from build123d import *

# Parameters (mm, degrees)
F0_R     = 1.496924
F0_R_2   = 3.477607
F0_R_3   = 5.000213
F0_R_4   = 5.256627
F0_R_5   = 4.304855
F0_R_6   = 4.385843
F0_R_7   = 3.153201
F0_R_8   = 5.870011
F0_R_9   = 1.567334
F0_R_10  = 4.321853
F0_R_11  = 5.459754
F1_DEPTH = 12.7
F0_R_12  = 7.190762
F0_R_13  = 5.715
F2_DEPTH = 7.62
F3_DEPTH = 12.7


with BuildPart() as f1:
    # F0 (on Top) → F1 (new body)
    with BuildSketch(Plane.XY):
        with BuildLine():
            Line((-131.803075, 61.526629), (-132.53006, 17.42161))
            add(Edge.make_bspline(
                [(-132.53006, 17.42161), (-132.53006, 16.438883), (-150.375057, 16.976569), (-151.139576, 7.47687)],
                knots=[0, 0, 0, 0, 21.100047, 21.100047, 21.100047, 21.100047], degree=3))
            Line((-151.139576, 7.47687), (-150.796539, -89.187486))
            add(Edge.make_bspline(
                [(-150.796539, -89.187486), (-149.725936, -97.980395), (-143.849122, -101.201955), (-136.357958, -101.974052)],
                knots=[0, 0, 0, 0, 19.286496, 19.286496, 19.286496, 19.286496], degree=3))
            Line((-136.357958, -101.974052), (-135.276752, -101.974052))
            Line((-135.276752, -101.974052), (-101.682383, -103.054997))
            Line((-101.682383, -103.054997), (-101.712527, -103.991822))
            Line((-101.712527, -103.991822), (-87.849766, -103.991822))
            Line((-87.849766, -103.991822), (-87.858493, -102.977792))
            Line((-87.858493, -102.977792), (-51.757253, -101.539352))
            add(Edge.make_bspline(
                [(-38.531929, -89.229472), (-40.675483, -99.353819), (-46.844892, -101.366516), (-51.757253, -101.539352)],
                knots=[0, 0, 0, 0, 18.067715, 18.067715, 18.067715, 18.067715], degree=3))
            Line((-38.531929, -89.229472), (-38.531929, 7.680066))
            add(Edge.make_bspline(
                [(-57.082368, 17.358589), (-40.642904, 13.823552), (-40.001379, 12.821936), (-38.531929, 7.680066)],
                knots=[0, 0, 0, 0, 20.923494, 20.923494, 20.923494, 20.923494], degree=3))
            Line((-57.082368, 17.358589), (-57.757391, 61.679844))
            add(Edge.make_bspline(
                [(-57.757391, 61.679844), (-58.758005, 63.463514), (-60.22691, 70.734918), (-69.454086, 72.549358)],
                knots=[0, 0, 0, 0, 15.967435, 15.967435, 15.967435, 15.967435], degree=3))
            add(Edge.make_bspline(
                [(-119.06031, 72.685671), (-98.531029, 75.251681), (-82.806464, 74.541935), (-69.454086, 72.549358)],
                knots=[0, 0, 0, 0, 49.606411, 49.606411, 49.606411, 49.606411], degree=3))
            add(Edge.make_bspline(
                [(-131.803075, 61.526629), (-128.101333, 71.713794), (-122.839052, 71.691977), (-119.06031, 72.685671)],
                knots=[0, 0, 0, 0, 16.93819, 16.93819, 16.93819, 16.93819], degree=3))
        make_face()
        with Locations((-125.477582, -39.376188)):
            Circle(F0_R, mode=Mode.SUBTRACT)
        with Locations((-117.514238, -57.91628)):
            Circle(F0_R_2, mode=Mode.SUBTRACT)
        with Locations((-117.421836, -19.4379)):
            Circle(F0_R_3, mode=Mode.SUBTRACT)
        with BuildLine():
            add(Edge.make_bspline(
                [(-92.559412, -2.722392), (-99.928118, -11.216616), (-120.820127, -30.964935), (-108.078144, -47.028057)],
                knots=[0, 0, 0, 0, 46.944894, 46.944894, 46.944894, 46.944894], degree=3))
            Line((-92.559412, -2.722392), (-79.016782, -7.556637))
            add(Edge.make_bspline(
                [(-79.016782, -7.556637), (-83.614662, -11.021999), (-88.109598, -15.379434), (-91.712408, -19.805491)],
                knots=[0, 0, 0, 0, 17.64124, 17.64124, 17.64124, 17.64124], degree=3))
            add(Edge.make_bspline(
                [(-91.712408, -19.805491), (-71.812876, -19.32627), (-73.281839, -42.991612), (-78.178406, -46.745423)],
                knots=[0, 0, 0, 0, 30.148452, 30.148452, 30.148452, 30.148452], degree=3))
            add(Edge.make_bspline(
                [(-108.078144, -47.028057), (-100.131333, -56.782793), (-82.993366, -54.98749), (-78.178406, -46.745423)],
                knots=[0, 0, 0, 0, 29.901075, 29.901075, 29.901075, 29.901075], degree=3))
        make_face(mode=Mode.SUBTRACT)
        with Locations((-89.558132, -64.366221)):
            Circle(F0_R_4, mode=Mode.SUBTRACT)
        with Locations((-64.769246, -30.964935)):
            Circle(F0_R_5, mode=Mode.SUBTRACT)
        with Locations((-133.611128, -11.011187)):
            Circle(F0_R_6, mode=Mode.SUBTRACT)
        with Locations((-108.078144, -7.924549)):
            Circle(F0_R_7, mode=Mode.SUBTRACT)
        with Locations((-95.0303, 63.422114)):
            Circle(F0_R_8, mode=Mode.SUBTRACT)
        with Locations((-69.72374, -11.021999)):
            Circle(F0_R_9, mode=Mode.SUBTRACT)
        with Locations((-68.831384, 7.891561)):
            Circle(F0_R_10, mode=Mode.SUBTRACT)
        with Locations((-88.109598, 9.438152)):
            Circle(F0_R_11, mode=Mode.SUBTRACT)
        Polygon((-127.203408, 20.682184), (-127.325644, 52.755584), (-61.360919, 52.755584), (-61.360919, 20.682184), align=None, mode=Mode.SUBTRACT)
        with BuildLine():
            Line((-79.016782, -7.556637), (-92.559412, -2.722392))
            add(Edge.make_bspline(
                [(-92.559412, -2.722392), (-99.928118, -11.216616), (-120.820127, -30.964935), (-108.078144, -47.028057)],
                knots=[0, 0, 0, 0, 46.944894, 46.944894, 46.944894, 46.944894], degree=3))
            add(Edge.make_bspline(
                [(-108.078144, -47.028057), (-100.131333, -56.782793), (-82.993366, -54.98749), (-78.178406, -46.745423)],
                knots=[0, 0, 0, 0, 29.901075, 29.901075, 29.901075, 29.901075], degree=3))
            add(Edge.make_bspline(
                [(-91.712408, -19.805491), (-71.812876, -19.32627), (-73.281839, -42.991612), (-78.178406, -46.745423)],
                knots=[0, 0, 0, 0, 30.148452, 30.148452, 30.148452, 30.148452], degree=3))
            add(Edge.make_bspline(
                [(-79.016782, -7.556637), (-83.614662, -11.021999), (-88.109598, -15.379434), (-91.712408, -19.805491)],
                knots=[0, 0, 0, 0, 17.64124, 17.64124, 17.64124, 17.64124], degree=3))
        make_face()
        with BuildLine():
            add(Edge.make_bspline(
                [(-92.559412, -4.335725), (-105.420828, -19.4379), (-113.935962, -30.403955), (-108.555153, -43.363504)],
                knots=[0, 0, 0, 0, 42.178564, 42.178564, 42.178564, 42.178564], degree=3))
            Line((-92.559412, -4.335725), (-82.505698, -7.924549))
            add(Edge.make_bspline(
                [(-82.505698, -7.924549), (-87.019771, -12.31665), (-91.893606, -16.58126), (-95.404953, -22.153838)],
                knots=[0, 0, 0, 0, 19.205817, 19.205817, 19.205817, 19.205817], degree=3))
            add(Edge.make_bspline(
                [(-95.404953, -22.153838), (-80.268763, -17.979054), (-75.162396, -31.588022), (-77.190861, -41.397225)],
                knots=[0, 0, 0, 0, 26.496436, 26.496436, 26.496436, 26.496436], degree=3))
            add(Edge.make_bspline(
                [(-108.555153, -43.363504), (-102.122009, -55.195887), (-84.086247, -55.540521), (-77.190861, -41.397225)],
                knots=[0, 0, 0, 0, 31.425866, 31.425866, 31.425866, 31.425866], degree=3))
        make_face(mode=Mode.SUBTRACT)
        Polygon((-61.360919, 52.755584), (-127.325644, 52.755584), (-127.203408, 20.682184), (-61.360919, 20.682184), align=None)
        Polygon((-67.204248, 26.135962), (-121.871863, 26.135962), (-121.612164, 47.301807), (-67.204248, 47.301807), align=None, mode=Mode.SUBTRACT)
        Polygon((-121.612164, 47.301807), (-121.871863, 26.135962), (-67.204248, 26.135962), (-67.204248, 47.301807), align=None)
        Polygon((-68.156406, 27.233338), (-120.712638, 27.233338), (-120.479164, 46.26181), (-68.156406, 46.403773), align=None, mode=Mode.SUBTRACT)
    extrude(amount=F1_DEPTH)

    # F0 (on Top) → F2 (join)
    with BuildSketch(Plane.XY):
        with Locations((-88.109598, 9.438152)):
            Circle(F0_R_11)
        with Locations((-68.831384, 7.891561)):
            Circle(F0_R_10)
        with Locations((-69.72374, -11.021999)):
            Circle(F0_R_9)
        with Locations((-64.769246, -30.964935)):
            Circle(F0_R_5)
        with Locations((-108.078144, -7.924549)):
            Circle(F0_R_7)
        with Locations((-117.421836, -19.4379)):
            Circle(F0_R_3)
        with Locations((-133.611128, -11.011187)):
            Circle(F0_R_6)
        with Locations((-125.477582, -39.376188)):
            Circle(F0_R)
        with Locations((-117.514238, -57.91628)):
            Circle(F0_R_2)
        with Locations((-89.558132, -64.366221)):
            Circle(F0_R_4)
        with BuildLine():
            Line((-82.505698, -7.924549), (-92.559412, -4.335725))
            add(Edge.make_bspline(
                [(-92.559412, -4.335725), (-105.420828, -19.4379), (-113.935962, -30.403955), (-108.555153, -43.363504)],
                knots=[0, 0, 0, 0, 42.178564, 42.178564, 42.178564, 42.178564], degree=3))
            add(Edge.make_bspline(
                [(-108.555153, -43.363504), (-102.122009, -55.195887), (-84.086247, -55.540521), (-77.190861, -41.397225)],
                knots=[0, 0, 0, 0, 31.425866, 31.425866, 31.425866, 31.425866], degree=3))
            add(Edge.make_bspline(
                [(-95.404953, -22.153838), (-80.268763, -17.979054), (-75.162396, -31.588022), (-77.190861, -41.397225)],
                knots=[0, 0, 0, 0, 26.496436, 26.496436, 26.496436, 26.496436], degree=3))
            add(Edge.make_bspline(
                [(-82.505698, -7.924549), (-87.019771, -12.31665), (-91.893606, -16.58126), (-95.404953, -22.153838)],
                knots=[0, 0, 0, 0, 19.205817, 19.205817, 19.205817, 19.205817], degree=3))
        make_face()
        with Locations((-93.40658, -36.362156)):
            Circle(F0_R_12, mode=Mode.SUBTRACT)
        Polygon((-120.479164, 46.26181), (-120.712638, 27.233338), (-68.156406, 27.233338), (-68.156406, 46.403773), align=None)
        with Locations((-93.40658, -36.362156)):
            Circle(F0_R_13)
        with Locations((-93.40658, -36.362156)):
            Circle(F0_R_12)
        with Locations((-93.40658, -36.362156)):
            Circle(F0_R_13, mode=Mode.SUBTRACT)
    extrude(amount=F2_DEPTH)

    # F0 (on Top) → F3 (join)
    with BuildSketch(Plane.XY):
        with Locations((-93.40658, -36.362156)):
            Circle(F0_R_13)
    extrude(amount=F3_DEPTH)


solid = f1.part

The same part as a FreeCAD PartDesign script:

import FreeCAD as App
import Part
import Sketcher
Q = App.Units.Quantity


def add_polygon(sketch, points):
    """Adds a closed chain of lines whose ends are joined by coincident constraints."""
    first, n = sketch.GeometryCount, len(points)
    for a, b in zip(points, points[1:] + points[:1]):
        sketch.addGeometry(Part.LineSegment(App.Vector(*a, 0), App.Vector(*b, 0)), False)
    for i in range(n):
        sketch.addConstraint(Sketcher.Constraint("Coincident", first + i, 2, first + (i + 1) % n, 1))

doc = App.newDocument("Part")
body = doc.addObject("PartDesign::Body", "Body")

# Sketch on XY plane
sketch1 = body.newObject("Sketcher::SketchObject", "Sketch")
sketch1.AttachmentSupport = (doc.getObject("XY_Plane"), [""])
sketch1.MapMode = "FlatFace"
sketch1.addGeometry(Part.LineSegment(App.Vector(-131.803075, 61.526629, 0), App.Vector(-132.53006, 17.42161, 0)), False)  # 0
sketch1.addGeometry(Part.BSplineCurve([App.Vector(-132.53006, 17.42161, 0), App.Vector(-132.53006, 16.438883, 0), App.Vector(-150.375057, 16.976569, 0), App.Vector(-151.139576, 7.47687, 0)], [4, 4], [0, 21.100047], False, 3, [1, 1, 1, 1], False), False)  # 1
sketch1.addGeometry(Part.LineSegment(App.Vector(-151.139576, 7.47687, 0), App.Vector(-150.796539, -89.187486, 0)), False)  # 2
sketch1.addGeometry(Part.BSplineCurve([App.Vector(-150.796539, -89.187486, 0), App.Vector(-149.725936, -97.980395, 0), App.Vector(-143.849122, -101.201955, 0), App.Vector(-136.357958, -101.974052, 0)], [4, 4], [0, 19.286496], False, 3, [1, 1, 1, 1], False), False)  # 3
sketch1.addGeometry(Part.LineSegment(App.Vector(-136.357958, -101.974052, 0), App.Vector(-135.276752, -101.974052, 0)), False)  # 4
sketch1.addGeometry(Part.LineSegment(App.Vector(-135.276752, -101.974052, 0), App.Vector(-101.682383, -103.054997, 0)), False)  # 5
sketch1.addGeometry(Part.LineSegment(App.Vector(-101.682383, -103.054997, 0), App.Vector(-101.712527, -103.991822, 0)), False)  # 6
sketch1.addGeometry(Part.LineSegment(App.Vector(-101.712527, -103.991822, 0), App.Vector(-87.849766, -103.991822, 0)), False)  # 7
sketch1.addGeometry(Part.LineSegment(App.Vector(-87.849766, -103.991822, 0), App.Vector(-87.858493, -102.977792, 0)), False)  # 8
sketch1.addGeometry(Part.LineSegment(App.Vector(-87.858493, -102.977792, 0), App.Vector(-51.757253, -101.539352, 0)), False)  # 9
sketch1.addGeometry(Part.BSplineCurve([App.Vector(-38.531929, -89.229472, 0), App.Vector(-40.675483, -99.353819, 0), App.Vector(-46.844892, -101.366516, 0), App.Vector(-51.757253, -101.539352, 0)], [4, 4], [0, 18.067715], False, 3, [1, 1, 1, 1], False), False)  # 10
sketch1.addGeometry(Part.LineSegment(App.Vector(-38.531929, -89.229472, 0), App.Vector(-38.531929, 7.680066, 0)), False)  # 11
sketch1.addGeometry(Part.BSplineCurve([App.Vector(-57.082368, 17.358589, 0), App.Vector(-40.642904, 13.823552, 0), App.Vector(-40.001379, 12.821936, 0), App.Vector(-38.531929, 7.680066, 0)], [4, 4], [0, 20.923494], False, 3, [1, 1, 1, 1], False), False)  # 12
sketch1.addGeometry(Part.LineSegment(App.Vector(-57.082368, 17.358589, 0), App.Vector(-57.757391, 61.679844, 0)), False)  # 13
sketch1.addGeometry(Part.BSplineCurve([App.Vector(-57.757391, 61.679844, 0), App.Vector(-58.758005, 63.463514, 0), App.Vector(-60.22691, 70.734918, 0), App.Vector(-69.454086, 72.549358, 0)], [4, 4], [0, 15.967435], False, 3, [1, 1, 1, 1], False), False)  # 14
sketch1.addGeometry(Part.BSplineCurve([App.Vector(-119.06031, 72.685671, 0), App.Vector(-98.531029, 75.251681, 0), App.Vector(-82.806464, 74.541935, 0), App.Vector(-69.454086, 72.549358, 0)], [4, 4], [0, 49.606411], False, 3, [1, 1, 1, 1], False), False)  # 15
sketch1.addGeometry(Part.BSplineCurve([App.Vector(-131.803075, 61.526629, 0), App.Vector(-128.101333, 71.713794, 0), App.Vector(-122.839052, 71.691977, 0), App.Vector(-119.06031, 72.685671, 0)], [4, 4], [0, 16.93819], False, 3, [1, 1, 1, 1], False), False)  # 16
sketch1.addGeometry(Part.Circle(App.Vector(-125.477582, -39.376188, 0), App.Vector(0, 0, 1), 1.496924), False)  # 17
sketch1.addGeometry(Part.Circle(App.Vector(-117.514238, -57.91628, 0), App.Vector(0, 0, 1), 3.477607), False)  # 18
sketch1.addGeometry(Part.Circle(App.Vector(-133.611128, -11.011187, 0), App.Vector(0, 0, 1), 4.385843), False)  # 19
sketch1.addGeometry(Part.Circle(App.Vector(-117.421836, -19.4379, 0), App.Vector(0, 0, 1), 5.000213), False)  # 20
sketch1.addGeometry(Part.Circle(App.Vector(-108.078144, -7.924549, 0), App.Vector(0, 0, 1), 3.153201), False)  # 21
sketch1.addGeometry(Part.Circle(App.Vector(-89.558132, -64.366221, 0), App.Vector(0, 0, 1), 5.256627), False)  # 22
sketch1.addGeometry(Part.BSplineCurve([App.Vector(-92.559412, -4.335725, 0), App.Vector(-105.420828, -19.4379, 0), App.Vector(-113.935962, -30.403955, 0), App.Vector(-108.555153, -43.363504, 0)], [4, 4], [0, 42.178564], False, 3, [1, 1, 1, 1], False), False)  # 23
sketch1.addGeometry(Part.LineSegment(App.Vector(-92.559412, -4.335725, 0), App.Vector(-82.505698, -7.924549, 0)), False)  # 24
sketch1.addGeometry(Part.BSplineCurve([App.Vector(-82.505698, -7.924549, 0), App.Vector(-87.019771, -12.31665, 0), App.Vector(-91.893606, -16.58126, 0), App.Vector(-95.404953, -22.153838, 0)], [4, 4], [0, 19.205817], False, 3, [1, 1, 1, 1], False), False)  # 25
sketch1.addGeometry(Part.BSplineCurve([App.Vector(-95.404953, -22.153838, 0), App.Vector(-80.268763, -17.979054, 0), App.Vector(-75.162396, -31.588022, 0), App.Vector(-77.190861, -41.397225, 0)], [4, 4], [0, 26.496436], False, 3, [1, 1, 1, 1], False), False)  # 26
sketch1.addGeometry(Part.BSplineCurve([App.Vector(-108.555153, -43.363504, 0), App.Vector(-102.122009, -55.195887, 0), App.Vector(-84.086247, -55.540521, 0), App.Vector(-77.190861, -41.397225, 0)], [4, 4], [0, 31.425866], False, 3, [1, 1, 1, 1], False), False)  # 27
sketch1.addGeometry(Part.Circle(App.Vector(-64.769246, -30.964935, 0), App.Vector(0, 0, 1), 4.304855), False)  # 28
sketch1.addGeometry(Part.Circle(App.Vector(-69.72374, -11.021999, 0), App.Vector(0, 0, 1), 1.567334), False)  # 29
sketch1.addGeometry(Part.Circle(App.Vector(-88.109598, 9.438152, 0), App.Vector(0, 0, 1), 5.459754), False)  # 30
sketch1.addGeometry(Part.Circle(App.Vector(-68.831384, 7.891561, 0), App.Vector(0, 0, 1), 4.321853), False)  # 31
add_polygon(sketch1, [(-68.156406, 46.403773), (-68.156406, 27.233338), (-120.712638, 27.233338), (-120.479164, 46.26181)])  # lines 32-35
sketch1.addGeometry(Part.Circle(App.Vector(-95.0303, 63.422114, 0), App.Vector(0, 0, 1), 5.870011), False)  # 36
sketch1.addConstraint([
    Sketcher.Constraint("Block", 1),
    Sketcher.Constraint("Block", 3),
    Sketcher.Constraint("Block", 10),
    Sketcher.Constraint("Block", 12),
    Sketcher.Constraint("Block", 14),
    Sketcher.Constraint("Block", 15),
    Sketcher.Constraint("Block", 16),
    Sketcher.Constraint("Block", 23),
    Sketcher.Constraint("Block", 25),
    Sketcher.Constraint("Block", 26),
    Sketcher.Constraint("Block", 27),
    Sketcher.Constraint("Coincident", 0, 2, 1, 1),
    Sketcher.Constraint("Coincident", 1, 2, 2, 1),
    Sketcher.Constraint("Coincident", 2, 2, 3, 1),
    Sketcher.Constraint("Coincident", 3, 2, 4, 1),
    Sketcher.Constraint("Coincident", 4, 2, 5, 1),
    Sketcher.Constraint("Coincident", 5, 2, 6, 1),
    Sketcher.Constraint("Coincident", 6, 2, 7, 1),
    Sketcher.Constraint("Coincident", 7, 2, 8, 1),
    Sketcher.Constraint("Coincident", 8, 2, 9, 1),
    Sketcher.Constraint("Coincident", 9, 2, 10, 2),
    Sketcher.Constraint("Coincident", 10, 1, 11, 1),
    Sketcher.Constraint("Coincident", 11, 2, 12, 2),
    Sketcher.Constraint("Coincident", 12, 1, 13, 1),
    Sketcher.Constraint("Coincident", 13, 2, 14, 1),
    Sketcher.Constraint("Coincident", 16, 1, 0, 1),
    Sketcher.Constraint("Coincident", 23, 1, 24, 1),
    Sketcher.Constraint("Coincident", 24, 2, 25, 1),
    Sketcher.Constraint("Horizontal", 4),
    Sketcher.Constraint("Horizontal", 7),
    Sketcher.Constraint("Vertical", 32),
    Sketcher.Constraint("Horizontal", 33),
    Sketcher.Constraint("Diameter", 28, Q("8.60971 mm")),
    Sketcher.Constraint("Diameter", 29, Q("3.134668 mm")),
    Sketcher.Constraint("Diameter", 17, Q("2.993848 mm")),
    Sketcher.Constraint("Diameter", 18, Q("6.955214 mm")),
    Sketcher.Constraint("Diameter", 19, Q("8.771686 mm")),
    Sketcher.Constraint("Diameter", 20, Q("10.000426 mm")),
    Sketcher.Constraint("Diameter", 21, Q("6.306402 mm")),
    Sketcher.Constraint("Diameter", 22, Q("10.513254 mm")),
    Sketcher.Constraint("Diameter", 30, Q("10.919508 mm")),
    Sketcher.Constraint("Diameter", 31, Q("8.643706 mm")),
    Sketcher.Constraint("Diameter", 36, Q("11.740022 mm")),
    Sketcher.Constraint("DistanceX", 7, 1, 7, 2, Q("13.862761 mm")),
    Sketcher.Constraint("DistanceX", 33, 2, 33, 1, Q("52.556232 mm")),
    Sketcher.Constraint("DistanceY", 20, 3, -1, 1, Q("19.4379 mm")),
    Sketcher.Constraint("DistanceY", 29, 3, -1, 1, Q("11.021999 mm")),
    Sketcher.Constraint("DistanceX", 30, 3, -1, 1, Q("88.109598 mm")),
    Sketcher.Constraint("DistanceX", 36, 3, -1, 1, Q("95.0303 mm")),
    Sketcher.Constraint("DistanceY", 17, 3, 19, 3, Q("28.365001 mm")),
    Sketcher.Constraint("DistanceY", 21, 3, 30, 3, Q("17.362701 mm")),
    Sketcher.Constraint("DistanceY", 19, 3, 36, 3, Q("74.433301 mm")),
    Sketcher.Constraint("DistanceX", 2, 2, 18, 3, Q("33.282301 mm")),
    Sketcher.Constraint("DistanceY", 2, 2, 17, 3, Q("49.811298 mm")),
    Sketcher.Constraint("DistanceX", 17, 3, 5, 2, Q("23.795199 mm")),
    Sketcher.Constraint("DistanceY", 6, 2, 22, 3, Q("39.625601 mm")),
    Sketcher.Constraint("DistanceY", 28, 3, 11, 2, Q("38.645001 mm")),
    Sketcher.Constraint("DistanceY", 24, 2, 30, 3, Q("17.362701 mm")),
    Sketcher.Constraint("DistanceY", 0, 2, 34, 2, Q("28.8402 mm")),
    Sketcher.Constraint("Distance", 6, Q("0.93731 mm")),
    Sketcher.Constraint("Distance", 35, Q("52.322951 mm")),
    Sketcher.Constraint("DistanceX", 4, 1, 4, 2, Q("1.081206 mm")),
    Sketcher.Constraint("DistanceY", 32, 2, 32, 1, Q("19.170435 mm")),
    Sketcher.Constraint("DistanceX", 17, 3, -1, 1, Q("125.477582 mm")),
    Sketcher.Constraint("DistanceY", 18, 3, -1, 1, Q("57.91628 mm")),
    Sketcher.Constraint("DistanceX", 19, 3, -1, 1, Q("133.611128 mm")),
    Sketcher.Constraint("DistanceX", 22, 3, -1, 1, Q("89.558132 mm")),
    Sketcher.Constraint("DistanceY", 22, 3, -1, 1, Q("64.366221 mm")),
    Sketcher.Constraint("DistanceX", 29, 3, -1, 1, Q("69.72374 mm")),
    Sketcher.Constraint("DistanceY", -1, 1, 31, 3, Q("7.891561 mm")),
    Sketcher.Constraint("DistanceY", 8, 2, -1, 1, Q("102.977792 mm")),
    Sketcher.Constraint("DistanceY", -1, 1, 32, 2, Q("27.233338 mm")),
    Sketcher.Constraint("DistanceX", 33, 2, -1, 1, Q("120.712638 mm")),
    Sketcher.Constraint("DistanceX", 17, 3, 21, 3, Q("17.399438 mm")),
    Sketcher.Constraint("DistanceX", 20, 3, 28, 3, Q("52.65259 mm")),
    Sketcher.Constraint("DistanceX", 31, 3, 28, 3, Q("4.062138 mm")),
    Sketcher.Constraint("DistanceX", 21, 3, 31, 3, Q("39.24676 mm")),
    Sketcher.Constraint("DistanceY", 5, 2, 2, 2, Q("13.867511 mm")),
    Sketcher.Constraint("DistanceX", 5, 2, 8, 2, Q("13.82389 mm")),
])
pad1 = body.newObject("PartDesign::Pad", "Pad")
pad1.Profile = sketch1
pad1.Length = Q("0.5 in")

# Sketch on XY plane
sketch2 = body.newObject("Sketcher::SketchObject", "Sketch001")
sketch2.AttachmentSupport = (doc.getObject("XY_Plane"), [""])
sketch2.MapMode = "FlatFace"
sketch2.addGeometry(Part.Circle(App.Vector(-88.109598, 9.438152, 0), App.Vector(0, 0, 1), 5.459754), False)  # 0
sketch2.addGeometry(Part.Circle(App.Vector(-68.831384, 7.891561, 0), App.Vector(0, 0, 1), 4.321853), False)  # 1
sketch2.addGeometry(Part.Circle(App.Vector(-69.72374, -11.021999, 0), App.Vector(0, 0, 1), 1.567334), False)  # 2
sketch2.addGeometry(Part.Circle(App.Vector(-64.769246, -30.964935, 0), App.Vector(0, 0, 1), 4.304855), False)  # 3
sketch2.addGeometry(Part.Circle(App.Vector(-108.078144, -7.924549, 0), App.Vector(0, 0, 1), 3.153201), False)  # 4
sketch2.addGeometry(Part.Circle(App.Vector(-117.421836, -19.4379, 0), App.Vector(0, 0, 1), 5.000213), False)  # 5
sketch2.addGeometry(Part.Circle(App.Vector(-133.611128, -11.011187, 0), App.Vector(0, 0, 1), 4.385843), False)  # 6
sketch2.addGeometry(Part.Circle(App.Vector(-125.477582, -39.376188, 0), App.Vector(0, 0, 1), 1.496924), False)  # 7
sketch2.addGeometry(Part.Circle(App.Vector(-117.514238, -57.91628, 0), App.Vector(0, 0, 1), 3.477607), False)  # 8
sketch2.addGeometry(Part.Circle(App.Vector(-89.558132, -64.366221, 0), App.Vector(0, 0, 1), 5.256627), False)  # 9
sketch2.addGeometry(Part.LineSegment(App.Vector(-82.505698, -7.924549, 0), App.Vector(-92.559412, -4.335725, 0)), False)  # 10
sketch2.addGeometry(Part.BSplineCurve([App.Vector(-92.559412, -4.335725, 0), App.Vector(-105.420828, -19.4379, 0), App.Vector(-113.935962, -30.403955, 0), App.Vector(-108.555153, -43.363504, 0)], [4, 4], [0, 42.178564], False, 3, [1, 1, 1, 1], False), False)  # 11
sketch2.addGeometry(Part.BSplineCurve([App.Vector(-108.555153, -43.363504, 0), App.Vector(-102.122009, -55.195887, 0), App.Vector(-84.086247, -55.540521, 0), App.Vector(-77.190861, -41.397225, 0)], [4, 4], [0, 31.425866], False, 3, [1, 1, 1, 1], False), False)  # 12
sketch2.addGeometry(Part.BSplineCurve([App.Vector(-95.404953, -22.153838, 0), App.Vector(-80.268763, -17.979054, 0), App.Vector(-75.162396, -31.588022, 0), App.Vector(-77.190861, -41.397225, 0)], [4, 4], [0, 26.496436], False, 3, [1, 1, 1, 1], False), False)  # 13
sketch2.addGeometry(Part.BSplineCurve([App.Vector(-82.505698, -7.924549, 0), App.Vector(-87.019771, -12.31665, 0), App.Vector(-91.893606, -16.58126, 0), App.Vector(-95.404953, -22.153838, 0)], [4, 4], [0, 19.205817], False, 3, [1, 1, 1, 1], False), False)  # 14
sketch2.addGeometry(Part.Circle(App.Vector(-93.40658, -36.362156, 0), App.Vector(0, 0, 1), 5.715), False)  # 15
add_polygon(sketch2, [(-120.479164, 46.26181), (-120.712638, 27.233338), (-68.156406, 27.233338), (-68.156406, 46.403773)])  # lines 16-19
sketch2.addConstraint([
    Sketcher.Constraint("Block", 11),
    Sketcher.Constraint("Block", 12),
    Sketcher.Constraint("Block", 13),
    Sketcher.Constraint("Block", 14),
    Sketcher.Constraint("Coincident", 10, 2, 11, 1),
    Sketcher.Constraint("Coincident", 14, 1, 10, 1),
    Sketcher.Constraint("Horizontal", 17),
    Sketcher.Constraint("Vertical", 18),
    Sketcher.Constraint("Diameter", 15, Q("0.45 in")),
    Sketcher.Constraint("Diameter", 2, Q("3.134668 mm")),
    Sketcher.Constraint("Diameter", 3, Q("8.60971 mm")),
    Sketcher.Constraint("Diameter", 0, Q("10.919508 mm")),
    Sketcher.Constraint("Diameter", 1, Q("8.643706 mm")),
    Sketcher.Constraint("Diameter", 4, Q("6.306402 mm")),
    Sketcher.Constraint("Diameter", 5, Q("10.000426 mm")),
    Sketcher.Constraint("Diameter", 6, Q("8.771686 mm")),
    Sketcher.Constraint("Diameter", 7, Q("2.993848 mm")),
    Sketcher.Constraint("Diameter", 8, Q("6.955214 mm")),
    Sketcher.Constraint("Diameter", 9, Q("10.513254 mm")),
    Sketcher.Constraint("DistanceX", 17, 1, 17, 2, Q("52.556232 mm")),
    Sketcher.Constraint("DistanceX", 0, 3, -1, 1, Q("88.109598 mm")),
    Sketcher.Constraint("DistanceY", 2, 3, -1, 1, Q("11.021999 mm")),
    Sketcher.Constraint("DistanceY", 5, 3, -1, 1, Q("19.4379 mm")),
    Sketcher.Constraint("DistanceY", 4, 3, 0, 3, Q("17.362701 mm")),
    Sketcher.Constraint("DistanceY", 7, 3, 6, 3, Q("28.365001 mm")),
    Sketcher.Constraint("DistanceX", 7, 3, 15, 3, Q("32.071002 mm")),
    Sketcher.Constraint("DistanceX", 16, 2, 5, 3, Q("3.290802 mm")),
    Sketcher.Constraint("Distance", 19, Q("52.322951 mm")),
    Sketcher.Constraint("DistanceY", 18, 1, 18, 2, Q("19.170435 mm")),
    Sketcher.Constraint("DistanceY", -1, 1, 1, 3, Q("7.891561 mm")),
    Sketcher.Constraint("DistanceX", 2, 3, -1, 1, Q("69.72374 mm")),
    Sketcher.Constraint("DistanceY", 4, 3, -1, 1, Q("7.924549 mm")),
    Sketcher.Constraint("DistanceX", 6, 3, -1, 1, Q("133.611128 mm")),
    Sketcher.Constraint("DistanceX", 7, 3, -1, 1, Q("125.477582 mm")),
    Sketcher.Constraint("DistanceX", 8, 3, -1, 1, Q("117.514238 mm")),
    Sketcher.Constraint("DistanceY", 8, 3, -1, 1, Q("57.91628 mm")),
    Sketcher.Constraint("DistanceX", 9, 3, -1, 1, Q("89.558132 mm")),
    Sketcher.Constraint("DistanceY", 9, 3, -1, 1, Q("64.366221 mm")),
    Sketcher.Constraint("DistanceX", 16, 2, -1, 1, Q("120.712638 mm")),
    Sketcher.Constraint("DistanceY", -1, 1, 16, 2, Q("27.233338 mm")),
    Sketcher.Constraint("DistanceY", -1, 1, 19, 2, Q("46.26181 mm")),
    Sketcher.Constraint("DistanceX", 1, 3, 3, 3, Q("4.062138 mm")),
    Sketcher.Constraint("DistanceX", 4, 3, 1, 3, Q("39.24676 mm")),
    Sketcher.Constraint("DistanceX", 5, 3, 3, 3, Q("52.65259 mm")),
    Sketcher.Constraint("DistanceY", 6, 3, 0, 3, Q("20.449339 mm")),
    Sketcher.Constraint("DistanceY", 15, 3, 3, 3, Q("5.397221 mm")),
    Sketcher.Constraint("DistanceY", 3, 3, -1, 1, Q("30.964935 mm")),
])
pad2 = body.newObject("PartDesign::Pad", "Pad001")
pad2.Profile = sketch2
pad2.Length = Q("0.3 in")

# Sketch on XY plane
sketch3 = body.newObject("Sketcher::SketchObject", "Sketch002")
sketch3.AttachmentSupport = (doc.getObject("XY_Plane"), [""])
sketch3.MapMode = "FlatFace"
sketch3.addGeometry(Part.Circle(App.Vector(-93, -36, 0), App.Vector(0, 0, 1), 6), False)
sketch3.addConstraint([
    Sketcher.Constraint("Diameter", 0, Q("0.45 in")),
    Sketcher.Constraint("DistanceX", 0, 3, -1, 1, Q("93.40658 mm")),
    Sketcher.Constraint("DistanceY", 0, 3, -1, 1, Q("36.362156 mm")),
])
pad3 = body.newObject("PartDesign::Pad", "Pad002")
pad3.Profile = sketch3
pad3.Length = Q("0.5 in")

doc.recompute()
